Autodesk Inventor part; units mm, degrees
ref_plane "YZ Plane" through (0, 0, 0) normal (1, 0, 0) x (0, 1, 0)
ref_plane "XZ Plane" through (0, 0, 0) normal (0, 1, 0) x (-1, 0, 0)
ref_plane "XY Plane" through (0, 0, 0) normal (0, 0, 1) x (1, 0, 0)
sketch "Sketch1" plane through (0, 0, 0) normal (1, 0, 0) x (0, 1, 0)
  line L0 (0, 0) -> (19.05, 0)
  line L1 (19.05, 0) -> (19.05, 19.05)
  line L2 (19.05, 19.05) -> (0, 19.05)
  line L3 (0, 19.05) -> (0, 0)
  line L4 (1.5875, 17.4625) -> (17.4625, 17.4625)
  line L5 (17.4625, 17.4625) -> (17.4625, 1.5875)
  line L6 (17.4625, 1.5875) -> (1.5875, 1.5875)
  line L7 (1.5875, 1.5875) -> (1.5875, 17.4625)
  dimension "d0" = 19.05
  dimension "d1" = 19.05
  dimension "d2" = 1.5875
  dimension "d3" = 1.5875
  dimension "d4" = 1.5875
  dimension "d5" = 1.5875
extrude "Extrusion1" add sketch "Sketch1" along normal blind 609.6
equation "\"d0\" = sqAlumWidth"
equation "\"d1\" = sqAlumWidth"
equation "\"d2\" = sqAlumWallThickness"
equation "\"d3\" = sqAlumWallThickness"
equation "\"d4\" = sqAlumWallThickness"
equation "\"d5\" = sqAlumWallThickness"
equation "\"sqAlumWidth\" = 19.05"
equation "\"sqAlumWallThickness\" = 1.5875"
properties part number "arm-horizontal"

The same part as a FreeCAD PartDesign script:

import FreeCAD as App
import Part
import Sketcher
Q = App.Units.Quantity

doc = App.newDocument("Part")
body = doc.addObject("PartDesign::Body", "Body")

# Sketch on YZ plane
sketch1 = body.newObject("Sketcher::SketchObject", "Sketch")
sketch1.AttachmentSupport = (doc.getObject("YZ_Plane"), [""])
sketch1.MapMode = "FlatFace"
sketch1.addGeometry([
    Part.LineSegment(App.Vector(0, 19, 0), App.Vector(0, 0, 0)),  # 0
    Part.LineSegment(App.Vector(0, 0, 0), App.Vector(19, 0, 0)),  # 1
    Part.LineSegment(App.Vector(19, 0, 0), App.Vector(19, 19, 0)),  # 2
    Part.LineSegment(App.Vector(19, 19, 0), App.Vector(0, 19, 0)),  # 3
    Part.LineSegment(App.Vector(2, 2, 0), App.Vector(2, 17, 0)),  # 4
    Part.LineSegment(App.Vector(2, 17, 0), App.Vector(17, 17, 0)),  # 5
    Part.LineSegment(App.Vector(17, 17, 0), App.Vector(17, 2, 0)),  # 6
    Part.LineSegment(App.Vector(17, 2, 0), App.Vector(2, 2, 0)),  # 7
], False)
sketch1.addConstraint([
    Sketcher.Constraint("Coincident", 0, 2, 1, 1),
    Sketcher.Constraint("Coincident", 1, 2, 2, 1),
    Sketcher.Constraint("Coincident", 2, 2, 3, 1),
    Sketcher.Constraint("Coincident", 3, 2, 0, 1),
    Sketcher.Constraint("Coincident", 4, 2, 5, 1),
    Sketcher.Constraint("Coincident", 5, 2, 6, 1),
    Sketcher.Constraint("Coincident", 6, 2, 7, 1),
    Sketcher.Constraint("Coincident", 7, 2, 4, 1),
    Sketcher.Constraint("Vertical", 0),
    Sketcher.Constraint("Horizontal", 1),
    Sketcher.Constraint("Vertical", 2),
    Sketcher.Constraint("Horizontal", 3),
    Sketcher.Constraint("Vertical", 4),
    Sketcher.Constraint("Horizontal", 5),
    Sketcher.Constraint("Vertical", 6),
    Sketcher.Constraint("Horizontal", 7),
    Sketcher.Constraint("Coincident", 0, 2, -1, 1),
    Sketcher.Constraint("Equal", 3, 0),
    Sketcher.Constraint("Equal", 7, 4),
    Sketcher.Constraint("DistanceX", 1, 1, 1, 2, Q("0.75 in")),
    Sketcher.Constraint("DistanceX", -1, 1, 4, 2, Q("0.0625 in")),
    Sketcher.Constraint("DistanceY", -1, 1, 6, 2, Q("0.0625 in")),
    Sketcher.Constraint("DistanceY", 4, 2, 3, 2, Q("0.0625 in")),
])
pad1 = body.newObject("PartDesign::Pad", "Pad")
pad1.Profile = sketch1
pad1.Length = Q("24 in")

doc.recompute()
